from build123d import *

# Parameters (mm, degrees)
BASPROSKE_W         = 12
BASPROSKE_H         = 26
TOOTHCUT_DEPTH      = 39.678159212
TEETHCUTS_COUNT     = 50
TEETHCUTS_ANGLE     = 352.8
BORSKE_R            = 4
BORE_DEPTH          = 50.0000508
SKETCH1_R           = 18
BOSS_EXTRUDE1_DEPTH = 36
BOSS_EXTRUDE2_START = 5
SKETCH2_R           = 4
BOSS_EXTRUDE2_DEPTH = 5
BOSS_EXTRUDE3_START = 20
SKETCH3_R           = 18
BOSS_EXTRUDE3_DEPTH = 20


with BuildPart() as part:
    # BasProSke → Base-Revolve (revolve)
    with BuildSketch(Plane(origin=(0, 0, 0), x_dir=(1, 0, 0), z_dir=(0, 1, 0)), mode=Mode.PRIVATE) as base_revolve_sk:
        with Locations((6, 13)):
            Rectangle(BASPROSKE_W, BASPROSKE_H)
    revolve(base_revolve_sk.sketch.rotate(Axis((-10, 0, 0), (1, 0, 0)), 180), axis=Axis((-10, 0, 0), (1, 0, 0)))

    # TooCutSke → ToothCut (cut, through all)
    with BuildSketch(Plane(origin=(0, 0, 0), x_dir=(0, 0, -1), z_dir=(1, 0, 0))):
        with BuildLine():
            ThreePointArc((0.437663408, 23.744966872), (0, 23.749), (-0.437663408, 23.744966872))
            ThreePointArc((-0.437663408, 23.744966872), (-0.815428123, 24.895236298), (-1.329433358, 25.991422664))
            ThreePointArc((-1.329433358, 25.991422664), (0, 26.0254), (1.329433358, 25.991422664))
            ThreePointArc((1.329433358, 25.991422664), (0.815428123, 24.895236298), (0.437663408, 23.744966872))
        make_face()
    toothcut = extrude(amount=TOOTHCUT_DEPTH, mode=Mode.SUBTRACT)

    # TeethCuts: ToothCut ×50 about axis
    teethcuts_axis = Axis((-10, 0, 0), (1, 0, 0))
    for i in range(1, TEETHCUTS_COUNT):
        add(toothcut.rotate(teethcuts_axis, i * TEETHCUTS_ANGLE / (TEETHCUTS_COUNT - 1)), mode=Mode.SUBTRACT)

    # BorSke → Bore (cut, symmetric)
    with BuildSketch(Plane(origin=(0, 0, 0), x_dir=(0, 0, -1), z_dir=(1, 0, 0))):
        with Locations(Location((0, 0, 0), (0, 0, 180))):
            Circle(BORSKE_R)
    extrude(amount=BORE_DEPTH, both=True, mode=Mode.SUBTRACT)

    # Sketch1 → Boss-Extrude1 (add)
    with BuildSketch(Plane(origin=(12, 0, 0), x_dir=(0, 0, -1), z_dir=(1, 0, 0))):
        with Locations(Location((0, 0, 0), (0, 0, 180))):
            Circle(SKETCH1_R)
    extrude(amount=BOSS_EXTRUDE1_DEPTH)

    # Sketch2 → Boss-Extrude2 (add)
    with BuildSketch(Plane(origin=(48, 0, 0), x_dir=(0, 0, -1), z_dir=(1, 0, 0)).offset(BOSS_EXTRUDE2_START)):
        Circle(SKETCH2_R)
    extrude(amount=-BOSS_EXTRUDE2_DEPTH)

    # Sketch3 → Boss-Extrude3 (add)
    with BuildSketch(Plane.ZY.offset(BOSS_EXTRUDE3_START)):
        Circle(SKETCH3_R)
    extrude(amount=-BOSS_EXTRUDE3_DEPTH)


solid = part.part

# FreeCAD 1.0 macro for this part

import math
import FreeCAD as App
import Part
import Sketcher

V = App.Vector
Q = App.Units.Quantity

doc = App.newDocument("Part")
body = doc.addObject("PartDesign::Body", "Body")

sketch1 = doc.addObject("Sketcher::SketchObject", "Sketch")
body.addObject(sketch1)
sketch1.AttachmentSupport = (doc.XZ_Plane, [""])
sketch1.MapMode = "FlatFace"
sketch1.addGeometry(Part.LineSegment(V(0, -26, 0), V(0, 0, 0)), False)
sketch1.addGeometry(Part.LineSegment(V(0, 0, 0), V(12, 0, 0)), False)
sketch1.addGeometry(Part.LineSegment(V(12, 0, 0), V(12, -26, 0)), False)
sketch1.addGeometry(Part.LineSegment(V(12, -26, 0), V(0, -26, 0)), False)
sketch1.addConstraint(Sketcher.Constraint("Coincident", 0, 2, 1, 1))
sketch1.addConstraint(Sketcher.Constraint("Coincident", 1, 2, 2, 1))
sketch1.addConstraint(Sketcher.Constraint("Coincident", 2, 2, 3, 1))
sketch1.addConstraint(Sketcher.Constraint("Coincident", 3, 2, 0, 1))
sketch1.addConstraint(Sketcher.Constraint("Vertical", 0))
sketch1.addConstraint(Sketcher.Constraint("Horizontal", 1))
sketch1.addConstraint(Sketcher.Constraint("Vertical", 2))
sketch1.addConstraint(Sketcher.Constraint("Horizontal", 3))
sketch1.addConstraint(Sketcher.Constraint("Coincident", 0, 2, -1, 1))
sketch1.addConstraint(Sketcher.Constraint("DistanceX", 1, 1, 1, 2, Q("12 mm")))
sketch1.addConstraint(Sketcher.Constraint("DistanceY", 0, 1, 0, 2, Q("26 mm")))
revolution = doc.addObject("PartDesign::Revolution", "Revolution")
body.addObject(revolution)
revolution.Profile = sketch1
revolution.ReferenceAxis = (sketch1, ["H_Axis"])
revolution.Angle = 360

sketch2 = doc.addObject("Sketcher::SketchObject", "Sketch001")
body.addObject(sketch2)
sketch2.AttachmentSupport = (doc.YZ_Plane, [""])
sketch2.MapMode = "FlatFace"
sketch2.addGeometry(Part.ArcOfCircle(Part.Circle(V(0, 0, 0), V(0, 0, 1), 23.7), math.radians(-1.06), math.radians(1.06)), False)
sketch2.addGeometry(Part.ArcOfCircle(Part.Circle(V(21.2, -10.1, 0), V(0, 0, 1), 10), math.radians(61.41), math.radians(75.29)), False)
sketch2.addGeometry(Part.ArcOfCircle(Part.Circle(V(0, 0, 0), V(0, 0, 1), 26), math.radians(-2.93), math.radians(2.93)), False)
sketch2.addGeometry(Part.ArcOfCircle(Part.Circle(V(21.2, 10.1, 0), V(0, 0, 1), 10), math.radians(-75.29), math.radians(-61.41)), False)
sketch2.addConstraint(Sketcher.Constraint("Coincident", 0, 1, 1, 2))
sketch2.addConstraint(Sketcher.Constraint("Coincident", 1, 1, 2, 1))
sketch2.addConstraint(Sketcher.Constraint("Coincident", 2, 2, 3, 2))
sketch2.addConstraint(Sketcher.Constraint("Coincident", 3, 1, 0, 2))
sketch2.addConstraint(Sketcher.Constraint("Coincident", 0, 3, -1, 1))
sketch2.addConstraint(Sketcher.Constraint("Coincident", 2, 3, -1, 1))
sketch2.addConstraint(Sketcher.Constraint("Equal", 1, 3))
sketch2.addConstraint(Sketcher.Constraint("Symmetric", 1, 3, 3, 3, -1))
sketch2.addConstraint(Sketcher.Constraint("Radius", 1, Q("10 mm")))
sketch2.addConstraint(Sketcher.Constraint("Radius", 0, Q("23.749001 mm")))
sketch2.addConstraint(Sketcher.Constraint("Radius", 2, Q("26.0254 mm")))
sketch2.addConstraint(Sketcher.Constraint("DistanceX", -1, 1, 1, 3, Q("21.20564 mm")))
sketch2.addConstraint(Sketcher.Constraint("DistanceX", 0, 3, 0, 1, Q("23.744968 mm")))
pocket1 = doc.addObject("PartDesign::Pocket", "Pocket")
body.addObject(pocket1)
pocket1.Profile = sketch2
pocket1.Type = "ThroughAll"
pocket1.Reversed = True
doc.recompute()

polarpattern = doc.addObject("PartDesign::PolarPattern", "PolarPattern")
body.addObject(polarpattern)
polarpattern.Originals = [pocket1]
polarpattern.Axis = (doc.X_Axis, [""])
polarpattern.Angle = 360
polarpattern.Occurrences = 50
body.Tip = polarpattern

sketch3 = doc.addObject("Sketcher::SketchObject", "Sketch002")
body.addObject(sketch3)
sketch3.AttachmentSupport = (doc.YZ_Plane, [""])
sketch3.MapMode = "FlatFace"
sketch3.addGeometry(Part.Circle(V(0, 0, 0), V(0, 0, 1), 4), False)
sketch3.addConstraint(Sketcher.Constraint("Coincident", 0, 3, -1, 1))
sketch3.addConstraint(Sketcher.Constraint("Diameter", 0, Q("8 mm")))
pocket2 = doc.addObject("PartDesign::Pocket", "Pocket001")
body.addObject(pocket2)
pocket2.Profile = sketch3
pocket2.Length = 100.000102
pocket2.Midplane = True

sketch4 = doc.addObject("Sketcher::SketchObject", "Sketch003")
body.addObject(sketch4)
sketch4.AttachmentSupport = (doc.YZ_Plane, [""])
sketch4.MapMode = "FlatFace"
sketch4.AttachmentOffset = App.Placement(V(0, 0, 12), App.Rotation())
sketch4.addGeometry(Part.Circle(V(0, 0, 0), V(0, 0, 1), 18), False)
sketch4.addConstraint(Sketcher.Constraint("Coincident", 0, 3, -1, 1))
sketch4.addConstraint(Sketcher.Constraint("Diameter", 0, Q("36 mm")))
pad1 = doc.addObject("PartDesign::Pad", "Pad")
body.addObject(pad1)
pad1.Profile = sketch4
pad1.Length = 36

sketch5 = doc.addObject("Sketcher::SketchObject", "Sketch004")
body.addObject(sketch5)
sketch5.AttachmentSupport = (doc.YZ_Plane, [""])
sketch5.MapMode = "FlatFace"
sketch5.AttachmentOffset = App.Placement(V(0, 0, 53), App.Rotation())
sketch5.addGeometry(Part.Circle(V(0, 0, 0), V(0, 0, 1), 4), False)
sketch5.addConstraint(Sketcher.Constraint("Coincident", 0, 3, -1, 1))
sketch5.addConstraint(Sketcher.Constraint("Diameter", 0, Q("8 mm")))
pad2 = doc.addObject("PartDesign::Pad", "Pad001")
body.addObject(pad2)
pad2.Profile = sketch5
pad2.Length = 5
pad2.Reversed = True

sketch6 = doc.addObject("Sketcher::SketchObject", "Sketch005")
body.addObject(sketch6)
sketch6.AttachmentSupport = (doc.YZ_Plane, [""])
sketch6.MapMode = "FlatFace"
sketch6.AttachmentOffset = App.Placement(V(0, 0, -20), App.Rotation())
sketch6.addGeometry(Part.Circle(V(0, 0, 0), V(0, 0, 1), 18), False)
sketch6.addConstraint(Sketcher.Constraint("Coincident", 0, 3, -1, 1))
sketch6.addConstraint(Sketcher.Constraint("Diameter", 0, Q("36 mm")))
pad3 = doc.addObject("PartDesign::Pad", "Pad002")
body.addObject(pad3)
pad3.Profile = sketch6
pad3.Length = 20

doc.recompute()
